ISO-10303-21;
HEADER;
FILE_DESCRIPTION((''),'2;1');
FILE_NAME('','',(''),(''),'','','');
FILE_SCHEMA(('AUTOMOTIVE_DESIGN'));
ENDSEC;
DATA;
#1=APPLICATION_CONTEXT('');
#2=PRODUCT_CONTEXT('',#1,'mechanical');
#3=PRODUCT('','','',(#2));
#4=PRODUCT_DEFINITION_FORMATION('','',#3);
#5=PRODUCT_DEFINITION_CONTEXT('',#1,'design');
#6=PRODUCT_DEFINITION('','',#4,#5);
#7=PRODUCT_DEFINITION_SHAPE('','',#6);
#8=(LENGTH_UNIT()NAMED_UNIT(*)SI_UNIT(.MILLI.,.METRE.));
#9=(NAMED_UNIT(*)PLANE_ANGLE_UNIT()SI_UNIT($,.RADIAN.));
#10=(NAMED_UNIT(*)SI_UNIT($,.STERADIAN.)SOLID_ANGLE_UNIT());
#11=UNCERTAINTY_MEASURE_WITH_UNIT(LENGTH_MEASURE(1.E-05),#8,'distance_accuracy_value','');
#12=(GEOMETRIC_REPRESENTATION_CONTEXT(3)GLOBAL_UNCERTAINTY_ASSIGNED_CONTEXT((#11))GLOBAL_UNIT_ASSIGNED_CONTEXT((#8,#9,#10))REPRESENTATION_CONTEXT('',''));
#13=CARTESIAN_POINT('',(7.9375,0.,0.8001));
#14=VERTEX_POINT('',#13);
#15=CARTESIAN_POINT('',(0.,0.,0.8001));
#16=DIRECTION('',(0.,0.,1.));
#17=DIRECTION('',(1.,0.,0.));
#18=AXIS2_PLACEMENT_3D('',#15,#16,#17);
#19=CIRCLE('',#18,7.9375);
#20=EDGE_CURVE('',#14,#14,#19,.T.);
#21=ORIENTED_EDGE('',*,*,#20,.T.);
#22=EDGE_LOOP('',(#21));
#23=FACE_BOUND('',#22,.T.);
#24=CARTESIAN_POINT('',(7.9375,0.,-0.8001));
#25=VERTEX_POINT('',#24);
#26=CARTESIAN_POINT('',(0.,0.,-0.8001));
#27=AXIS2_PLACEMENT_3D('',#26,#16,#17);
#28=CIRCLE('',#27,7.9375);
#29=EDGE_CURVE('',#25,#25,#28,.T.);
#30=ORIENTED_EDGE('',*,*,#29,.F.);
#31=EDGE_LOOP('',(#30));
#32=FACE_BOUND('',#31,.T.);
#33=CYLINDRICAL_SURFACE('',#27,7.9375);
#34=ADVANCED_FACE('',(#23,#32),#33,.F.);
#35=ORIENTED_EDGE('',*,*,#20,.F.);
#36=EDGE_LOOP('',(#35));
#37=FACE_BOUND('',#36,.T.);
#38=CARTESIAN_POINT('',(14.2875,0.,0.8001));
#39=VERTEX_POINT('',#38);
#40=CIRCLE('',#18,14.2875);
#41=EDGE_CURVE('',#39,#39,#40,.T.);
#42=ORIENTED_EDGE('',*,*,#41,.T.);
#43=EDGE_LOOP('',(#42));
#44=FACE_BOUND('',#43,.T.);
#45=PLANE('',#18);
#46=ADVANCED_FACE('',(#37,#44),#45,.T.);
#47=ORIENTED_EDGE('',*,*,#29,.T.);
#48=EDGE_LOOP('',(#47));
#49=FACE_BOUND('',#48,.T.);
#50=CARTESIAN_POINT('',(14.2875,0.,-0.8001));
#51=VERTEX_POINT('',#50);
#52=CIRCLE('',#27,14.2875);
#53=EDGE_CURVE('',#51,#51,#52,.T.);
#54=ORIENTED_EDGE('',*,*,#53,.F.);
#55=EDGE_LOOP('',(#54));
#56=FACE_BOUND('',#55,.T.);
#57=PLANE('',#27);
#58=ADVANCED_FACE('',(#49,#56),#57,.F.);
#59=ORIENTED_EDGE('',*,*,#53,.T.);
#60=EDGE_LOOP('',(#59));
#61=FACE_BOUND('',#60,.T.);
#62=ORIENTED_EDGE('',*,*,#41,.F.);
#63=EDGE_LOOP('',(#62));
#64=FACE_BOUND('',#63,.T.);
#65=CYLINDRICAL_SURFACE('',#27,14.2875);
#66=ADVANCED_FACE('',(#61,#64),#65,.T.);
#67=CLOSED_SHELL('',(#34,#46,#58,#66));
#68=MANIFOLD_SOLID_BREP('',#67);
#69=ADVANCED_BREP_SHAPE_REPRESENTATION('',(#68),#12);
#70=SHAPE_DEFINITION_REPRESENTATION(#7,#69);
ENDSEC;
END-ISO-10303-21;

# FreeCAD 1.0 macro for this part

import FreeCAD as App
import Part
import Sketcher
Q = App.Units.Quantity

doc = App.newDocument("Part")
body = doc.addObject("PartDesign::Body", "Body")

# Sketch on XY plane
sketch1 = doc.addObject("Sketcher::SketchObject", "Sketch")
body.addObject(sketch1)
sketch1.AttachmentSupport = (doc.XY_Plane, [""])
sketch1.MapMode = "FlatFace"
sketch1.addGeometry(Part.Circle(App.Vector(0, 0, 0), App.Vector(0, 0, 1), 14), False)
sketch1.addGeometry(Part.Circle(App.Vector(0, 0, 0), App.Vector(0, 0, 1), 8), False)
sketch1.addConstraint(Sketcher.Constraint("Coincident", 0, 3, -1, 1))
sketch1.addConstraint(Sketcher.Constraint("Coincident", 1, 3, -1, 1))
sketch1.addConstraint(Sketcher.Constraint("Diameter", 0, Q("1.125 in")))
sketch1.addConstraint(Sketcher.Constraint("Diameter", 1, Q("0.625 in")))
pad1 = doc.addObject("PartDesign::Pad", "Pad")
body.addObject(pad1)
pad1.Profile = sketch1
pad1.Type = "TwoLengths"
pad1.Length = Q("0.0315 in")
pad1.Length2 = Q("0.0315 in")

doc.recompute()
